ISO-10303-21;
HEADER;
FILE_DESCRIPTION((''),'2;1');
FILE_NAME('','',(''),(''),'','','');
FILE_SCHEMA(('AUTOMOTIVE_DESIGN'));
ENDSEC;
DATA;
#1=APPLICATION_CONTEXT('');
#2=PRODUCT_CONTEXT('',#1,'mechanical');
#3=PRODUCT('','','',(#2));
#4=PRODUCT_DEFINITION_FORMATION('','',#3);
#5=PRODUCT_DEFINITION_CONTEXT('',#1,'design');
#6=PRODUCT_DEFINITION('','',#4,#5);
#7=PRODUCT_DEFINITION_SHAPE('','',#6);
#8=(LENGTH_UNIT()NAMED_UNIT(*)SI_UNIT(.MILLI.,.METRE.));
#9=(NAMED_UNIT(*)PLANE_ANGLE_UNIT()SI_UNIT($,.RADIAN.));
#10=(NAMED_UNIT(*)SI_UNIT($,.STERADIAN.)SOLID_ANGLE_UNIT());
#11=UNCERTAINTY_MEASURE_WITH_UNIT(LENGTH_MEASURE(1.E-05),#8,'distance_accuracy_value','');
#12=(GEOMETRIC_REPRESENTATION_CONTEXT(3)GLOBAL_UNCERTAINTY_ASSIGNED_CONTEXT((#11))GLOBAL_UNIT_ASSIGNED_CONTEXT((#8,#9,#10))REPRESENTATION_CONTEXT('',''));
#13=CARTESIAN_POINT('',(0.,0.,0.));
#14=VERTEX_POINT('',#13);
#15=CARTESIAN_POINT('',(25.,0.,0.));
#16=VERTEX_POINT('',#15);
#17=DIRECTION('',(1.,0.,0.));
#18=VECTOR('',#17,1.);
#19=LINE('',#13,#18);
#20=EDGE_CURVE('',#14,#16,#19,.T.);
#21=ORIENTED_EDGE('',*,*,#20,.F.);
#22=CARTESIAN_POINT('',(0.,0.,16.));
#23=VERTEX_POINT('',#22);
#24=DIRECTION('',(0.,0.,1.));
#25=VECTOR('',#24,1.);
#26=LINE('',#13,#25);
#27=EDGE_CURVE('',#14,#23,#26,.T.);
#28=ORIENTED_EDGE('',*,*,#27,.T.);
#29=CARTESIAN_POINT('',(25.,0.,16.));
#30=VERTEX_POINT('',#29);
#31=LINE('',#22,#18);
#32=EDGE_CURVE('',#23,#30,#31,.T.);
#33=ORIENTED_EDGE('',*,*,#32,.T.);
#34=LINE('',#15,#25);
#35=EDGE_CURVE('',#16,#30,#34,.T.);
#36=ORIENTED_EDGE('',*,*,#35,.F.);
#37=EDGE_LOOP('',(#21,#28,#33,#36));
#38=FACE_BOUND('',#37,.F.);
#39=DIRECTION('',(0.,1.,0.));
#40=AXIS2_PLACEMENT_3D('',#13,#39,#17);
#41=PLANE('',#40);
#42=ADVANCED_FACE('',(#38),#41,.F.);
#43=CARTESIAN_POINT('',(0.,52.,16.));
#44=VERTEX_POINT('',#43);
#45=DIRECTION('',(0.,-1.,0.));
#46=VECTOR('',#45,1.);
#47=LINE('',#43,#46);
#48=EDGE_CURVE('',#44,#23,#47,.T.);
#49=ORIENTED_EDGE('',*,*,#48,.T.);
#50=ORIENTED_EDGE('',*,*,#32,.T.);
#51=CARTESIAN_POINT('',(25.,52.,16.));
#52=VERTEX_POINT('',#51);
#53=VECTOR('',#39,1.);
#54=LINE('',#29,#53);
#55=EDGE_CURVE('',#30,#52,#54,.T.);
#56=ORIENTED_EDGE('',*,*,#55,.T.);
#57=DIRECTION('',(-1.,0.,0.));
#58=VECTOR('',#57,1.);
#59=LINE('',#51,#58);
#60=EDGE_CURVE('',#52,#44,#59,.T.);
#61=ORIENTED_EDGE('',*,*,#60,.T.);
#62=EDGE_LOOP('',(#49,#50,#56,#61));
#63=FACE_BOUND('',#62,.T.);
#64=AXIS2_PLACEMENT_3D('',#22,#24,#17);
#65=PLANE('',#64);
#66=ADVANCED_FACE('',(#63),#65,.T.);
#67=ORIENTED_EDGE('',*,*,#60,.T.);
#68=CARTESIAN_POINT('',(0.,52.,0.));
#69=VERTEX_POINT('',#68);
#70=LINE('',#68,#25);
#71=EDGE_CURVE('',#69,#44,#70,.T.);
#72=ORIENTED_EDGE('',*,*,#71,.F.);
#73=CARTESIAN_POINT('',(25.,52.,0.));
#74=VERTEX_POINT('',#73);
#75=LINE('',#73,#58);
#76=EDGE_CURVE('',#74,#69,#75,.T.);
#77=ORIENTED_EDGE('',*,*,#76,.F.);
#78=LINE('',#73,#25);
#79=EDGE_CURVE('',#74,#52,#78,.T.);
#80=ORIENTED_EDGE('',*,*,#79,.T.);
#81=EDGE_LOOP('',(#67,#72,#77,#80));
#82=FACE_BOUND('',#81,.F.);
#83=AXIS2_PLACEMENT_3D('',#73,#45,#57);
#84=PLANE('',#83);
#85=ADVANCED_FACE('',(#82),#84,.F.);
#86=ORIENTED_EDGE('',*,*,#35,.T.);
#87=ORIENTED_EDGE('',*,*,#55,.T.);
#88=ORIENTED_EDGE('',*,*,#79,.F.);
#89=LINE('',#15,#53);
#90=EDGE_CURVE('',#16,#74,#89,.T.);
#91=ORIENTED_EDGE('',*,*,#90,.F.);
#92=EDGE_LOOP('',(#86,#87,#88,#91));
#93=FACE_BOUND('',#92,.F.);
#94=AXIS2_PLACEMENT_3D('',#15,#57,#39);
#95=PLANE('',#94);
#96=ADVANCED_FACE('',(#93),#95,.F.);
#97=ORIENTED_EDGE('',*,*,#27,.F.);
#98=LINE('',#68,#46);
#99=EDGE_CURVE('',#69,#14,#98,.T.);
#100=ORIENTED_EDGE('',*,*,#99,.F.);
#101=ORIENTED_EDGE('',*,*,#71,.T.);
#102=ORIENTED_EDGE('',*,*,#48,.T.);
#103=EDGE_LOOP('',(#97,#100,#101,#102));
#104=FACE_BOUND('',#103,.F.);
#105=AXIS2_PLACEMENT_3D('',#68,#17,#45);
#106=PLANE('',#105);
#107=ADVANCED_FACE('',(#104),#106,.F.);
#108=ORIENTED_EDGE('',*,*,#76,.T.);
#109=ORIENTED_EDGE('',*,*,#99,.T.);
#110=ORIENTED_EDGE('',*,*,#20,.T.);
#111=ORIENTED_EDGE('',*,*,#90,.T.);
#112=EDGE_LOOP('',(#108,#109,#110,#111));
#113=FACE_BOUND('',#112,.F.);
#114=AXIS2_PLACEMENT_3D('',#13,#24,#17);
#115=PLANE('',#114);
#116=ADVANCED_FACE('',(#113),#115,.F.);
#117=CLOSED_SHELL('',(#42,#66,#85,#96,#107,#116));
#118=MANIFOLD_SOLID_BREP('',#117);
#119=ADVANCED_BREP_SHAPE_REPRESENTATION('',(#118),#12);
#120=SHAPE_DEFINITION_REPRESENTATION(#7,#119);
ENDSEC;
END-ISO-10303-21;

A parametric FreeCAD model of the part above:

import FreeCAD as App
import Part
import Sketcher
from FreeCAD import Vector

doc = App.newDocument("Part")
params = doc.addObject("Spreadsheet::Sheet", "Params")
for row, (alias, value) in enumerate([
    ("sketch1_width", "25 mm"),
    ("sketch1_height", "52 mm"),
    ("pad1_length", "16 mm"),
], start=1):
    params.set(f"A{row}", alias)
    params.set(f"B{row}", "=" + value)
    params.setAlias(f"B{row}", alias)

body = doc.addObject("PartDesign::Body", "Body")

# Sketch on XY plane
sketch1 = body.newObject("Sketcher::SketchObject", "Sketch")
sketch1.AttachmentSupport = (doc.getObject("XY_Plane"), [""])
sketch1.MapMode = "FlatFace"
sketch1.addGeometry([
    Part.LineSegment(Vector(0, 52, 0), Vector(0, 0, 0)),
    Part.LineSegment(Vector(0, 0, 0), Vector(25, 0, 0)),
    Part.LineSegment(Vector(25, 0, 0), Vector(25, 52, 0)),
    Part.LineSegment(Vector(25, 52, 0), Vector(0, 52, 0)),
], False)
sketch1.addConstraint([
    Sketcher.Constraint("Coincident", 0, 2, 1, 1),
    Sketcher.Constraint("Coincident", 1, 2, 2, 1),
    Sketcher.Constraint("Coincident", 2, 2, 3, 1),
    Sketcher.Constraint("Coincident", 3, 2, 0, 1),
    Sketcher.Constraint("Vertical", 0),
    Sketcher.Constraint("Horizontal", 1),
    Sketcher.Constraint("Vertical", 2),
    Sketcher.Constraint("Horizontal", 3),
    Sketcher.Constraint("Coincident", 0, 2, -1, 1),
    Sketcher.Constraint("DistanceX", 1, 1, 1, 2, 25.0),
    Sketcher.Constraint("DistanceY", 0, 2, 0, 1, 52.0),
])
sketch1.setExpression("Constraints[9]", "Params.sketch1_width")
sketch1.setExpression("Constraints[10]", "Params.sketch1_height")
pad1 = body.newObject("PartDesign::Pad", "Pad")
pad1.Profile = sketch1
pad1.setExpression("Length", "Params.pad1_length")

doc.recompute()
